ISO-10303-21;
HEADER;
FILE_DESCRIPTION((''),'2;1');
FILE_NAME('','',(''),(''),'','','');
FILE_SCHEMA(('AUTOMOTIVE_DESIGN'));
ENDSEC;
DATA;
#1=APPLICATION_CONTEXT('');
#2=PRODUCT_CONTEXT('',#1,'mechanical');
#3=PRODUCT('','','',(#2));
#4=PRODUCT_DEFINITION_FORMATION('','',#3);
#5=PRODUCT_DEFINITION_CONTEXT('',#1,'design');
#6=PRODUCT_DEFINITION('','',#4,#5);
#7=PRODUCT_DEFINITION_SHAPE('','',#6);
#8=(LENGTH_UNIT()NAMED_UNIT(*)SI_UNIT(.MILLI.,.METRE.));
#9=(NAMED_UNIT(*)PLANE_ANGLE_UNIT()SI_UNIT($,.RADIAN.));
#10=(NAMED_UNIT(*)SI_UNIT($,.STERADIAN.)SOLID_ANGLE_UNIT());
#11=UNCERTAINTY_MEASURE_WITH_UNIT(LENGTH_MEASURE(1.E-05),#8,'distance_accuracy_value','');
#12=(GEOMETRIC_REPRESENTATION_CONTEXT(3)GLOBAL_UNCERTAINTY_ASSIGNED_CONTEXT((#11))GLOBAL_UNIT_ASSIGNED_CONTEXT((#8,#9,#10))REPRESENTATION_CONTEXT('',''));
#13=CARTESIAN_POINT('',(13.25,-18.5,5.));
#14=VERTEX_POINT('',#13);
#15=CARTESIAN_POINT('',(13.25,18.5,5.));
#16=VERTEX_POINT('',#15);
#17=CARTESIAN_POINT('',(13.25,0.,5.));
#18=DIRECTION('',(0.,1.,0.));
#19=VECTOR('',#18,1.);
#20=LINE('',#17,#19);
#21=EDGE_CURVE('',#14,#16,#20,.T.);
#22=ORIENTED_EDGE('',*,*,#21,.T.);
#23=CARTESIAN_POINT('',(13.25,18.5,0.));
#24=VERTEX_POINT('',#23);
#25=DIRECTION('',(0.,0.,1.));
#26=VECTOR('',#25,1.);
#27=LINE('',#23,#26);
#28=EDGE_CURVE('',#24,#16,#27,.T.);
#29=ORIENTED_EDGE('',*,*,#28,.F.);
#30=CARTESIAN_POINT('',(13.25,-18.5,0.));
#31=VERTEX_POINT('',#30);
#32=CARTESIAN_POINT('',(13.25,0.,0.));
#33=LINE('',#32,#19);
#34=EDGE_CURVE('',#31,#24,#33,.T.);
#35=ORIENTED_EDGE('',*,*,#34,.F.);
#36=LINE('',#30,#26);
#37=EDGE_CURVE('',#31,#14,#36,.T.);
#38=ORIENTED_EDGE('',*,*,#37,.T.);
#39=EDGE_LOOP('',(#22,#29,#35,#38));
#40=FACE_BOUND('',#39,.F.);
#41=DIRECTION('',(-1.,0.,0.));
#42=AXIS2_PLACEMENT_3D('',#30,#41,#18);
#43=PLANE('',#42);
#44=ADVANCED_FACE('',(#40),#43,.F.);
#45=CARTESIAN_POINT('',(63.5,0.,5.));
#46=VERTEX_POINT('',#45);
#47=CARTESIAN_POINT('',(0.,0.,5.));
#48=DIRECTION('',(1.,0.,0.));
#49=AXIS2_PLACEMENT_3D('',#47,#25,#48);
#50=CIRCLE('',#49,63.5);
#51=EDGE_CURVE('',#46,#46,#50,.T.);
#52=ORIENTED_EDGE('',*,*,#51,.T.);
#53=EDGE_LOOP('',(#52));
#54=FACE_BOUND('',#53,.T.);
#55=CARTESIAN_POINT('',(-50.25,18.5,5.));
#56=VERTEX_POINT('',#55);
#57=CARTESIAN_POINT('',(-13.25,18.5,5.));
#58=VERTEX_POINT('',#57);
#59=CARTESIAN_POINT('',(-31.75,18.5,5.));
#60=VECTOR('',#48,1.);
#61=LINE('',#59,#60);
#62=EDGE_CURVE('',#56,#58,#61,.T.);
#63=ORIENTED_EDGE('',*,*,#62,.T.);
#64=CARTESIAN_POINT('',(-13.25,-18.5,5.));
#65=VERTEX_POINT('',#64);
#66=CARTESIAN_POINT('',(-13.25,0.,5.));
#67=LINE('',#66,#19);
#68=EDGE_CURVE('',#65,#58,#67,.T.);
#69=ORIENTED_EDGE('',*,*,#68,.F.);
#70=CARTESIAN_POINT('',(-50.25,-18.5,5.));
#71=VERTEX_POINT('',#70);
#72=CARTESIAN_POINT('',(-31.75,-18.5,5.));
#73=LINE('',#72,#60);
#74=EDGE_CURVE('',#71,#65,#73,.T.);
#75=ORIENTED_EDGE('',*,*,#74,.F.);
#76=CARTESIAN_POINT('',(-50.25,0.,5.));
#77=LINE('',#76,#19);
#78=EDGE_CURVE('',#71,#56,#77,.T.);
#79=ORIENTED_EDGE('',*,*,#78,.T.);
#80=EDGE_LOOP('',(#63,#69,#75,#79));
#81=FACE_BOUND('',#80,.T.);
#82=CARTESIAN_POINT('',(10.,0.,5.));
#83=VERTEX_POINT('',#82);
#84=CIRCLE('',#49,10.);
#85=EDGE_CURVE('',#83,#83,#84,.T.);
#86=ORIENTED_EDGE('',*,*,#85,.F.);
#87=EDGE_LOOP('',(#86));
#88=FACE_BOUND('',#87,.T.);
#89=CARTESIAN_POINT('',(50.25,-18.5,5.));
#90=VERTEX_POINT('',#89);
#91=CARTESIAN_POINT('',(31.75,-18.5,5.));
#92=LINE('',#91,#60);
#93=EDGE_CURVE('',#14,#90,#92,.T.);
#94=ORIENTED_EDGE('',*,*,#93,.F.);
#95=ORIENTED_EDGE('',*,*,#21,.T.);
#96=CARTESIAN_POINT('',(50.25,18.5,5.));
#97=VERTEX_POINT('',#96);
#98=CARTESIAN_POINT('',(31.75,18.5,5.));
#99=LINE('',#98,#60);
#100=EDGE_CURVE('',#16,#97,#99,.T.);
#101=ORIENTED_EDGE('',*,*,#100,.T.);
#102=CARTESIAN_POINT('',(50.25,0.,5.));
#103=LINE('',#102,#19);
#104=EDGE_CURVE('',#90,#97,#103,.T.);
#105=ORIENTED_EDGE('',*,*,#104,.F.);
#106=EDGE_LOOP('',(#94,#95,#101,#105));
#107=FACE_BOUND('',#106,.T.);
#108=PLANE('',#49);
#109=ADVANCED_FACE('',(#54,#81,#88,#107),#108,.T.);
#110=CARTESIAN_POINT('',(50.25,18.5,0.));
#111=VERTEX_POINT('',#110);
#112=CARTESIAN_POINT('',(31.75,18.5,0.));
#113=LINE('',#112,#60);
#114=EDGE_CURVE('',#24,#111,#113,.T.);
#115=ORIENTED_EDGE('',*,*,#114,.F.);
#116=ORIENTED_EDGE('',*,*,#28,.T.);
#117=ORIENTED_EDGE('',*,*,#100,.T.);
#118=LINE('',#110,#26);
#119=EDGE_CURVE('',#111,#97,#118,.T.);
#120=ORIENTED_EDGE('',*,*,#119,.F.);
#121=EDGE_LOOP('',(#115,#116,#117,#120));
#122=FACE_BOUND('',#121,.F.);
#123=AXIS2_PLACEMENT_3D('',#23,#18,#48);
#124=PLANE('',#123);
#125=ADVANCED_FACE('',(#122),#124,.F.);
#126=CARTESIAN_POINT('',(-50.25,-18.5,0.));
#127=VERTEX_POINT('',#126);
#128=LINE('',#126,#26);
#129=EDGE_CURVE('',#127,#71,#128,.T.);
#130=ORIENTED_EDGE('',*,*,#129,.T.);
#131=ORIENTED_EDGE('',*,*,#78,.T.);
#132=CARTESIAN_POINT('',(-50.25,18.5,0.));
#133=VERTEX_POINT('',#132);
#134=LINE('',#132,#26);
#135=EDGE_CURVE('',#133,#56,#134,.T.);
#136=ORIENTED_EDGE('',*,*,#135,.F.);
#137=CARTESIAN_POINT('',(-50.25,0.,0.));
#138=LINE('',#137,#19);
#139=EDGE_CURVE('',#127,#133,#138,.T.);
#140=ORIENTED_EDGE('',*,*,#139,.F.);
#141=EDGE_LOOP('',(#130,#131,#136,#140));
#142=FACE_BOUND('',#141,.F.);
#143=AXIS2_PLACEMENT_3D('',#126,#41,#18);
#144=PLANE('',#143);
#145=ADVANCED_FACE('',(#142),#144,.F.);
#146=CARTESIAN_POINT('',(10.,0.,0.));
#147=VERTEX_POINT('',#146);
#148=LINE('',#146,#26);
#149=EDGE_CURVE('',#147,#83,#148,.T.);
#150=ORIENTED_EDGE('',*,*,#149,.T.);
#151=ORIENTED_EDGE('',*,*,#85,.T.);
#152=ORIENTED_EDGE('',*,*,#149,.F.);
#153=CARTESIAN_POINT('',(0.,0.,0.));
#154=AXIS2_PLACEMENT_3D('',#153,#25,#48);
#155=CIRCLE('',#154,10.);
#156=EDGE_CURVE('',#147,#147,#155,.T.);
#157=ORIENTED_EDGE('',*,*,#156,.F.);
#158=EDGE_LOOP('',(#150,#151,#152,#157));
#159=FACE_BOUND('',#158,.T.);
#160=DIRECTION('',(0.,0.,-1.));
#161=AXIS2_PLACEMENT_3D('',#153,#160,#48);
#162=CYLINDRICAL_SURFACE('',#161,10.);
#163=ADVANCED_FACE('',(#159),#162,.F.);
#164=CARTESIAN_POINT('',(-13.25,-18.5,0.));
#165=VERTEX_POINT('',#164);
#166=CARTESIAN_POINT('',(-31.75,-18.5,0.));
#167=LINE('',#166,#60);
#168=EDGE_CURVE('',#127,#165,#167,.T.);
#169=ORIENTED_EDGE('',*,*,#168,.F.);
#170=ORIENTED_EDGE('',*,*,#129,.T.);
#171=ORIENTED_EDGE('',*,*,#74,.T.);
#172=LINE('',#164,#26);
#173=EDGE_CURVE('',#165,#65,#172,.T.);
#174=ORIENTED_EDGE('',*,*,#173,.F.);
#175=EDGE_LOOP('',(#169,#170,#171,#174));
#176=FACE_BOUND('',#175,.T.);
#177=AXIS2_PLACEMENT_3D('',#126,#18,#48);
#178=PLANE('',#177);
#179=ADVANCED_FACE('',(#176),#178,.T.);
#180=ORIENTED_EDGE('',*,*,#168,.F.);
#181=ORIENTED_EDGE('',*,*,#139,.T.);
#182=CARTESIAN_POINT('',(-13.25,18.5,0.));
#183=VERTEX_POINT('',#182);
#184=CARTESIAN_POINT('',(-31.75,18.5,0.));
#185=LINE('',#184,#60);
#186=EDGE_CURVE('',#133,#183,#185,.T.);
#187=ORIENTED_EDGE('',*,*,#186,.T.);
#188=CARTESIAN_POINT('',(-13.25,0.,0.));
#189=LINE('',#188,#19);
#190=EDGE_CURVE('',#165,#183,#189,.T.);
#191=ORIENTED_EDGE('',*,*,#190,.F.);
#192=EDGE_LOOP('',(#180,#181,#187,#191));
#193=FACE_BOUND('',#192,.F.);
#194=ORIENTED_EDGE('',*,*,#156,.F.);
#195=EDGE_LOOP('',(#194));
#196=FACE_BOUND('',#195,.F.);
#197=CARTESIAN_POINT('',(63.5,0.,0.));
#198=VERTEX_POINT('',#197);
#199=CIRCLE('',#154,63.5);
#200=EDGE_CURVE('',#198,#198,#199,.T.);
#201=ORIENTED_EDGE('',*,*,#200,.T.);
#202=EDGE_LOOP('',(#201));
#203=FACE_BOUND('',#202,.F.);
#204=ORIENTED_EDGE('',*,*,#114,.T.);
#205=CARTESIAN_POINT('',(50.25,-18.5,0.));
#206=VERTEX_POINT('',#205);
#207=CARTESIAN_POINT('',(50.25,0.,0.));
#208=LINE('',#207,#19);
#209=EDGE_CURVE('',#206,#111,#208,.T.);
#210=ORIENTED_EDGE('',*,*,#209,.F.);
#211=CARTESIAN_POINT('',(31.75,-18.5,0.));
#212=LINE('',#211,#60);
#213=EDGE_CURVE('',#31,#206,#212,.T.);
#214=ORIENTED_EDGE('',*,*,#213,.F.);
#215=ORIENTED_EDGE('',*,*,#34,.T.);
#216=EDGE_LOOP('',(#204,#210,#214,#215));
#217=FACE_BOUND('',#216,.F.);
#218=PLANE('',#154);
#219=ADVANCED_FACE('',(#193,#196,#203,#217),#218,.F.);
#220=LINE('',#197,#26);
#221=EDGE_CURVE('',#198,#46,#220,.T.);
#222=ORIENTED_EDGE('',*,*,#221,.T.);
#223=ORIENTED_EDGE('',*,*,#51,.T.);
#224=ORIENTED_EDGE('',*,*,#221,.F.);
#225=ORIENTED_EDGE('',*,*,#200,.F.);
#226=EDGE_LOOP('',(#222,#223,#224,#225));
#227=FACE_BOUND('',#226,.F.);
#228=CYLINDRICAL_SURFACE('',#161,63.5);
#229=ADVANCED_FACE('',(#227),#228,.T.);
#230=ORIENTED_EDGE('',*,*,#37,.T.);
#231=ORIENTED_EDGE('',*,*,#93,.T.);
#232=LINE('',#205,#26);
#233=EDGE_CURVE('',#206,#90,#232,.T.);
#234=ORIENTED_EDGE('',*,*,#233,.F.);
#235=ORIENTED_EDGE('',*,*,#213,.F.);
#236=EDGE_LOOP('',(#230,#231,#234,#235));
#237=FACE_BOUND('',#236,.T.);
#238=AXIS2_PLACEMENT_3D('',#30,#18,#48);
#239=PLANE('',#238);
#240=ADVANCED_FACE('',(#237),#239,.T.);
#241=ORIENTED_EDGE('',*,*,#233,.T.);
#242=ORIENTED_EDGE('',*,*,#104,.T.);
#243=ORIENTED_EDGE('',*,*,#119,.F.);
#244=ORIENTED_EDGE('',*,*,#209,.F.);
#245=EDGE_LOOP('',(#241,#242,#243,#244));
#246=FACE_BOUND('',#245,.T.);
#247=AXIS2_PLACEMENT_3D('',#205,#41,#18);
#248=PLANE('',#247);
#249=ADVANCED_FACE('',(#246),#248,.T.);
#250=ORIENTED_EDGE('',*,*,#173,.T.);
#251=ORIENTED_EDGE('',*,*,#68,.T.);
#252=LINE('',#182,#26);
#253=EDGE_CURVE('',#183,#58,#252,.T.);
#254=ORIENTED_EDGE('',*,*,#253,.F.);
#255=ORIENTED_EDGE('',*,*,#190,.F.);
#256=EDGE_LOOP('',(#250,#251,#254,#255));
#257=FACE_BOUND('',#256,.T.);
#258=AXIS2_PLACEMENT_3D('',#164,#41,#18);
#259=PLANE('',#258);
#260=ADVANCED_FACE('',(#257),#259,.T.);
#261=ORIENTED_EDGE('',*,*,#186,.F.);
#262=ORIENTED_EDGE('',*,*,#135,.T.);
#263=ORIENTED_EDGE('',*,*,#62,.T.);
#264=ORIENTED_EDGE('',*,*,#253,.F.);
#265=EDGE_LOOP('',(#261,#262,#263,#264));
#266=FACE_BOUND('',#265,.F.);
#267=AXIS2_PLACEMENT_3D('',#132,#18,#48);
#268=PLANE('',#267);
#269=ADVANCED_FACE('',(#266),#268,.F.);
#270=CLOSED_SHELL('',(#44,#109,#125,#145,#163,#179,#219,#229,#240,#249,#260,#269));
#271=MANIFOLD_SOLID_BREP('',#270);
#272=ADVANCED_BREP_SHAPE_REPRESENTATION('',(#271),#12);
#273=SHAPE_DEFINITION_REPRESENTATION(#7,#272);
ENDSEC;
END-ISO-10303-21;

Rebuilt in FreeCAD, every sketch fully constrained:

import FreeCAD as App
import Part
import Sketcher

V = App.Vector
Q = App.Units.Quantity

doc = App.newDocument("Part")
body = doc.addObject("PartDesign::Body", "Body")

# Sketch on XY plane
sketch1 = body.newObject("Sketcher::SketchObject", "Sketch")
sketch1.AttachmentSupport = (doc.getObject("XY_Plane"), [""])
sketch1.MapMode = "FlatFace"
sketch1.addGeometry(Part.Circle(V(0, 0, 0), V(0, 0, 1), 63.5), False)
sketch1.addGeometry(Part.LineSegment(V(-13.25, -18.5, 0), V(-50.25, -18.5, 0)), False)
sketch1.addGeometry(Part.LineSegment(V(-50.25, -18.5, 0), V(-50.25, 18.5, 0)), False)
sketch1.addGeometry(Part.LineSegment(V(-50.25, 18.5, 0), V(-13.25, 18.5, 0)), False)
sketch1.addGeometry(Part.LineSegment(V(-13.25, 18.5, 0), V(-13.25, -18.5, 0)), False)
sketch1.addGeometry(Part.Circle(V(0, 0, 0), V(0, 0, 1), 10), False)
sketch1.addGeometry(Part.LineSegment(V(50.25, -18.5, 0), V(13.25, -18.5, 0)), False)
sketch1.addGeometry(Part.LineSegment(V(13.25, -18.5, 0), V(13.25, 18.5, 0)), False)
sketch1.addGeometry(Part.LineSegment(V(13.25, 18.5, 0), V(50.25, 18.5, 0)), False)
sketch1.addGeometry(Part.LineSegment(V(50.25, 18.5, 0), V(50.25, -18.5, 0)), False)
sketch1.addConstraint(Sketcher.Constraint("Coincident", 1, 2, 2, 1))
sketch1.addConstraint(Sketcher.Constraint("Coincident", 2, 2, 3, 1))
sketch1.addConstraint(Sketcher.Constraint("Coincident", 3, 2, 4, 1))
sketch1.addConstraint(Sketcher.Constraint("Coincident", 4, 2, 1, 1))
sketch1.addConstraint(Sketcher.Constraint("Coincident", 6, 2, 7, 1))
sketch1.addConstraint(Sketcher.Constraint("Coincident", 7, 2, 8, 1))
sketch1.addConstraint(Sketcher.Constraint("Coincident", 8, 2, 9, 1))
sketch1.addConstraint(Sketcher.Constraint("Coincident", 9, 2, 6, 1))
sketch1.addConstraint(Sketcher.Constraint("Horizontal", 1))
sketch1.addConstraint(Sketcher.Constraint("Vertical", 2))
sketch1.addConstraint(Sketcher.Constraint("Horizontal", 3))
sketch1.addConstraint(Sketcher.Constraint("Vertical", 4))
sketch1.addConstraint(Sketcher.Constraint("Horizontal", 6))
sketch1.addConstraint(Sketcher.Constraint("Vertical", 7))
sketch1.addConstraint(Sketcher.Constraint("Horizontal", 8))
sketch1.addConstraint(Sketcher.Constraint("Vertical", 9))
sketch1.addConstraint(Sketcher.Constraint("Coincident", 0, 3, -1, 1))
sketch1.addConstraint(Sketcher.Constraint("Coincident", 5, 3, -1, 1))
sketch1.addConstraint(Sketcher.Constraint("Symmetric", 3, 2, 6, 2, -1, 1))
sketch1.addConstraint(Sketcher.Constraint("Symmetric", 1, 2, 8, 2, -1, 1))
sketch1.addConstraint(Sketcher.Constraint("Horizontal", 4, 2, 6, 2))
sketch1.addConstraint(Sketcher.Constraint("Equal", 8, 2))
sketch1.addConstraint(Sketcher.Constraint("Diameter", 0, Q("127 mm")))
sketch1.addConstraint(Sketcher.Constraint("Diameter", 5, Q("20 mm")))
sketch1.addConstraint(Sketcher.Constraint("DistanceX", 1, 2, 1, 1, Q("37 mm")))
sketch1.addConstraint(Sketcher.Constraint("DistanceX", 4, 2, 6, 2, Q("26.5 mm")))
pad1 = body.newObject("PartDesign::Pad", "Pad")
pad1.Profile = sketch1
pad1.Length = 5

doc.recompute()
